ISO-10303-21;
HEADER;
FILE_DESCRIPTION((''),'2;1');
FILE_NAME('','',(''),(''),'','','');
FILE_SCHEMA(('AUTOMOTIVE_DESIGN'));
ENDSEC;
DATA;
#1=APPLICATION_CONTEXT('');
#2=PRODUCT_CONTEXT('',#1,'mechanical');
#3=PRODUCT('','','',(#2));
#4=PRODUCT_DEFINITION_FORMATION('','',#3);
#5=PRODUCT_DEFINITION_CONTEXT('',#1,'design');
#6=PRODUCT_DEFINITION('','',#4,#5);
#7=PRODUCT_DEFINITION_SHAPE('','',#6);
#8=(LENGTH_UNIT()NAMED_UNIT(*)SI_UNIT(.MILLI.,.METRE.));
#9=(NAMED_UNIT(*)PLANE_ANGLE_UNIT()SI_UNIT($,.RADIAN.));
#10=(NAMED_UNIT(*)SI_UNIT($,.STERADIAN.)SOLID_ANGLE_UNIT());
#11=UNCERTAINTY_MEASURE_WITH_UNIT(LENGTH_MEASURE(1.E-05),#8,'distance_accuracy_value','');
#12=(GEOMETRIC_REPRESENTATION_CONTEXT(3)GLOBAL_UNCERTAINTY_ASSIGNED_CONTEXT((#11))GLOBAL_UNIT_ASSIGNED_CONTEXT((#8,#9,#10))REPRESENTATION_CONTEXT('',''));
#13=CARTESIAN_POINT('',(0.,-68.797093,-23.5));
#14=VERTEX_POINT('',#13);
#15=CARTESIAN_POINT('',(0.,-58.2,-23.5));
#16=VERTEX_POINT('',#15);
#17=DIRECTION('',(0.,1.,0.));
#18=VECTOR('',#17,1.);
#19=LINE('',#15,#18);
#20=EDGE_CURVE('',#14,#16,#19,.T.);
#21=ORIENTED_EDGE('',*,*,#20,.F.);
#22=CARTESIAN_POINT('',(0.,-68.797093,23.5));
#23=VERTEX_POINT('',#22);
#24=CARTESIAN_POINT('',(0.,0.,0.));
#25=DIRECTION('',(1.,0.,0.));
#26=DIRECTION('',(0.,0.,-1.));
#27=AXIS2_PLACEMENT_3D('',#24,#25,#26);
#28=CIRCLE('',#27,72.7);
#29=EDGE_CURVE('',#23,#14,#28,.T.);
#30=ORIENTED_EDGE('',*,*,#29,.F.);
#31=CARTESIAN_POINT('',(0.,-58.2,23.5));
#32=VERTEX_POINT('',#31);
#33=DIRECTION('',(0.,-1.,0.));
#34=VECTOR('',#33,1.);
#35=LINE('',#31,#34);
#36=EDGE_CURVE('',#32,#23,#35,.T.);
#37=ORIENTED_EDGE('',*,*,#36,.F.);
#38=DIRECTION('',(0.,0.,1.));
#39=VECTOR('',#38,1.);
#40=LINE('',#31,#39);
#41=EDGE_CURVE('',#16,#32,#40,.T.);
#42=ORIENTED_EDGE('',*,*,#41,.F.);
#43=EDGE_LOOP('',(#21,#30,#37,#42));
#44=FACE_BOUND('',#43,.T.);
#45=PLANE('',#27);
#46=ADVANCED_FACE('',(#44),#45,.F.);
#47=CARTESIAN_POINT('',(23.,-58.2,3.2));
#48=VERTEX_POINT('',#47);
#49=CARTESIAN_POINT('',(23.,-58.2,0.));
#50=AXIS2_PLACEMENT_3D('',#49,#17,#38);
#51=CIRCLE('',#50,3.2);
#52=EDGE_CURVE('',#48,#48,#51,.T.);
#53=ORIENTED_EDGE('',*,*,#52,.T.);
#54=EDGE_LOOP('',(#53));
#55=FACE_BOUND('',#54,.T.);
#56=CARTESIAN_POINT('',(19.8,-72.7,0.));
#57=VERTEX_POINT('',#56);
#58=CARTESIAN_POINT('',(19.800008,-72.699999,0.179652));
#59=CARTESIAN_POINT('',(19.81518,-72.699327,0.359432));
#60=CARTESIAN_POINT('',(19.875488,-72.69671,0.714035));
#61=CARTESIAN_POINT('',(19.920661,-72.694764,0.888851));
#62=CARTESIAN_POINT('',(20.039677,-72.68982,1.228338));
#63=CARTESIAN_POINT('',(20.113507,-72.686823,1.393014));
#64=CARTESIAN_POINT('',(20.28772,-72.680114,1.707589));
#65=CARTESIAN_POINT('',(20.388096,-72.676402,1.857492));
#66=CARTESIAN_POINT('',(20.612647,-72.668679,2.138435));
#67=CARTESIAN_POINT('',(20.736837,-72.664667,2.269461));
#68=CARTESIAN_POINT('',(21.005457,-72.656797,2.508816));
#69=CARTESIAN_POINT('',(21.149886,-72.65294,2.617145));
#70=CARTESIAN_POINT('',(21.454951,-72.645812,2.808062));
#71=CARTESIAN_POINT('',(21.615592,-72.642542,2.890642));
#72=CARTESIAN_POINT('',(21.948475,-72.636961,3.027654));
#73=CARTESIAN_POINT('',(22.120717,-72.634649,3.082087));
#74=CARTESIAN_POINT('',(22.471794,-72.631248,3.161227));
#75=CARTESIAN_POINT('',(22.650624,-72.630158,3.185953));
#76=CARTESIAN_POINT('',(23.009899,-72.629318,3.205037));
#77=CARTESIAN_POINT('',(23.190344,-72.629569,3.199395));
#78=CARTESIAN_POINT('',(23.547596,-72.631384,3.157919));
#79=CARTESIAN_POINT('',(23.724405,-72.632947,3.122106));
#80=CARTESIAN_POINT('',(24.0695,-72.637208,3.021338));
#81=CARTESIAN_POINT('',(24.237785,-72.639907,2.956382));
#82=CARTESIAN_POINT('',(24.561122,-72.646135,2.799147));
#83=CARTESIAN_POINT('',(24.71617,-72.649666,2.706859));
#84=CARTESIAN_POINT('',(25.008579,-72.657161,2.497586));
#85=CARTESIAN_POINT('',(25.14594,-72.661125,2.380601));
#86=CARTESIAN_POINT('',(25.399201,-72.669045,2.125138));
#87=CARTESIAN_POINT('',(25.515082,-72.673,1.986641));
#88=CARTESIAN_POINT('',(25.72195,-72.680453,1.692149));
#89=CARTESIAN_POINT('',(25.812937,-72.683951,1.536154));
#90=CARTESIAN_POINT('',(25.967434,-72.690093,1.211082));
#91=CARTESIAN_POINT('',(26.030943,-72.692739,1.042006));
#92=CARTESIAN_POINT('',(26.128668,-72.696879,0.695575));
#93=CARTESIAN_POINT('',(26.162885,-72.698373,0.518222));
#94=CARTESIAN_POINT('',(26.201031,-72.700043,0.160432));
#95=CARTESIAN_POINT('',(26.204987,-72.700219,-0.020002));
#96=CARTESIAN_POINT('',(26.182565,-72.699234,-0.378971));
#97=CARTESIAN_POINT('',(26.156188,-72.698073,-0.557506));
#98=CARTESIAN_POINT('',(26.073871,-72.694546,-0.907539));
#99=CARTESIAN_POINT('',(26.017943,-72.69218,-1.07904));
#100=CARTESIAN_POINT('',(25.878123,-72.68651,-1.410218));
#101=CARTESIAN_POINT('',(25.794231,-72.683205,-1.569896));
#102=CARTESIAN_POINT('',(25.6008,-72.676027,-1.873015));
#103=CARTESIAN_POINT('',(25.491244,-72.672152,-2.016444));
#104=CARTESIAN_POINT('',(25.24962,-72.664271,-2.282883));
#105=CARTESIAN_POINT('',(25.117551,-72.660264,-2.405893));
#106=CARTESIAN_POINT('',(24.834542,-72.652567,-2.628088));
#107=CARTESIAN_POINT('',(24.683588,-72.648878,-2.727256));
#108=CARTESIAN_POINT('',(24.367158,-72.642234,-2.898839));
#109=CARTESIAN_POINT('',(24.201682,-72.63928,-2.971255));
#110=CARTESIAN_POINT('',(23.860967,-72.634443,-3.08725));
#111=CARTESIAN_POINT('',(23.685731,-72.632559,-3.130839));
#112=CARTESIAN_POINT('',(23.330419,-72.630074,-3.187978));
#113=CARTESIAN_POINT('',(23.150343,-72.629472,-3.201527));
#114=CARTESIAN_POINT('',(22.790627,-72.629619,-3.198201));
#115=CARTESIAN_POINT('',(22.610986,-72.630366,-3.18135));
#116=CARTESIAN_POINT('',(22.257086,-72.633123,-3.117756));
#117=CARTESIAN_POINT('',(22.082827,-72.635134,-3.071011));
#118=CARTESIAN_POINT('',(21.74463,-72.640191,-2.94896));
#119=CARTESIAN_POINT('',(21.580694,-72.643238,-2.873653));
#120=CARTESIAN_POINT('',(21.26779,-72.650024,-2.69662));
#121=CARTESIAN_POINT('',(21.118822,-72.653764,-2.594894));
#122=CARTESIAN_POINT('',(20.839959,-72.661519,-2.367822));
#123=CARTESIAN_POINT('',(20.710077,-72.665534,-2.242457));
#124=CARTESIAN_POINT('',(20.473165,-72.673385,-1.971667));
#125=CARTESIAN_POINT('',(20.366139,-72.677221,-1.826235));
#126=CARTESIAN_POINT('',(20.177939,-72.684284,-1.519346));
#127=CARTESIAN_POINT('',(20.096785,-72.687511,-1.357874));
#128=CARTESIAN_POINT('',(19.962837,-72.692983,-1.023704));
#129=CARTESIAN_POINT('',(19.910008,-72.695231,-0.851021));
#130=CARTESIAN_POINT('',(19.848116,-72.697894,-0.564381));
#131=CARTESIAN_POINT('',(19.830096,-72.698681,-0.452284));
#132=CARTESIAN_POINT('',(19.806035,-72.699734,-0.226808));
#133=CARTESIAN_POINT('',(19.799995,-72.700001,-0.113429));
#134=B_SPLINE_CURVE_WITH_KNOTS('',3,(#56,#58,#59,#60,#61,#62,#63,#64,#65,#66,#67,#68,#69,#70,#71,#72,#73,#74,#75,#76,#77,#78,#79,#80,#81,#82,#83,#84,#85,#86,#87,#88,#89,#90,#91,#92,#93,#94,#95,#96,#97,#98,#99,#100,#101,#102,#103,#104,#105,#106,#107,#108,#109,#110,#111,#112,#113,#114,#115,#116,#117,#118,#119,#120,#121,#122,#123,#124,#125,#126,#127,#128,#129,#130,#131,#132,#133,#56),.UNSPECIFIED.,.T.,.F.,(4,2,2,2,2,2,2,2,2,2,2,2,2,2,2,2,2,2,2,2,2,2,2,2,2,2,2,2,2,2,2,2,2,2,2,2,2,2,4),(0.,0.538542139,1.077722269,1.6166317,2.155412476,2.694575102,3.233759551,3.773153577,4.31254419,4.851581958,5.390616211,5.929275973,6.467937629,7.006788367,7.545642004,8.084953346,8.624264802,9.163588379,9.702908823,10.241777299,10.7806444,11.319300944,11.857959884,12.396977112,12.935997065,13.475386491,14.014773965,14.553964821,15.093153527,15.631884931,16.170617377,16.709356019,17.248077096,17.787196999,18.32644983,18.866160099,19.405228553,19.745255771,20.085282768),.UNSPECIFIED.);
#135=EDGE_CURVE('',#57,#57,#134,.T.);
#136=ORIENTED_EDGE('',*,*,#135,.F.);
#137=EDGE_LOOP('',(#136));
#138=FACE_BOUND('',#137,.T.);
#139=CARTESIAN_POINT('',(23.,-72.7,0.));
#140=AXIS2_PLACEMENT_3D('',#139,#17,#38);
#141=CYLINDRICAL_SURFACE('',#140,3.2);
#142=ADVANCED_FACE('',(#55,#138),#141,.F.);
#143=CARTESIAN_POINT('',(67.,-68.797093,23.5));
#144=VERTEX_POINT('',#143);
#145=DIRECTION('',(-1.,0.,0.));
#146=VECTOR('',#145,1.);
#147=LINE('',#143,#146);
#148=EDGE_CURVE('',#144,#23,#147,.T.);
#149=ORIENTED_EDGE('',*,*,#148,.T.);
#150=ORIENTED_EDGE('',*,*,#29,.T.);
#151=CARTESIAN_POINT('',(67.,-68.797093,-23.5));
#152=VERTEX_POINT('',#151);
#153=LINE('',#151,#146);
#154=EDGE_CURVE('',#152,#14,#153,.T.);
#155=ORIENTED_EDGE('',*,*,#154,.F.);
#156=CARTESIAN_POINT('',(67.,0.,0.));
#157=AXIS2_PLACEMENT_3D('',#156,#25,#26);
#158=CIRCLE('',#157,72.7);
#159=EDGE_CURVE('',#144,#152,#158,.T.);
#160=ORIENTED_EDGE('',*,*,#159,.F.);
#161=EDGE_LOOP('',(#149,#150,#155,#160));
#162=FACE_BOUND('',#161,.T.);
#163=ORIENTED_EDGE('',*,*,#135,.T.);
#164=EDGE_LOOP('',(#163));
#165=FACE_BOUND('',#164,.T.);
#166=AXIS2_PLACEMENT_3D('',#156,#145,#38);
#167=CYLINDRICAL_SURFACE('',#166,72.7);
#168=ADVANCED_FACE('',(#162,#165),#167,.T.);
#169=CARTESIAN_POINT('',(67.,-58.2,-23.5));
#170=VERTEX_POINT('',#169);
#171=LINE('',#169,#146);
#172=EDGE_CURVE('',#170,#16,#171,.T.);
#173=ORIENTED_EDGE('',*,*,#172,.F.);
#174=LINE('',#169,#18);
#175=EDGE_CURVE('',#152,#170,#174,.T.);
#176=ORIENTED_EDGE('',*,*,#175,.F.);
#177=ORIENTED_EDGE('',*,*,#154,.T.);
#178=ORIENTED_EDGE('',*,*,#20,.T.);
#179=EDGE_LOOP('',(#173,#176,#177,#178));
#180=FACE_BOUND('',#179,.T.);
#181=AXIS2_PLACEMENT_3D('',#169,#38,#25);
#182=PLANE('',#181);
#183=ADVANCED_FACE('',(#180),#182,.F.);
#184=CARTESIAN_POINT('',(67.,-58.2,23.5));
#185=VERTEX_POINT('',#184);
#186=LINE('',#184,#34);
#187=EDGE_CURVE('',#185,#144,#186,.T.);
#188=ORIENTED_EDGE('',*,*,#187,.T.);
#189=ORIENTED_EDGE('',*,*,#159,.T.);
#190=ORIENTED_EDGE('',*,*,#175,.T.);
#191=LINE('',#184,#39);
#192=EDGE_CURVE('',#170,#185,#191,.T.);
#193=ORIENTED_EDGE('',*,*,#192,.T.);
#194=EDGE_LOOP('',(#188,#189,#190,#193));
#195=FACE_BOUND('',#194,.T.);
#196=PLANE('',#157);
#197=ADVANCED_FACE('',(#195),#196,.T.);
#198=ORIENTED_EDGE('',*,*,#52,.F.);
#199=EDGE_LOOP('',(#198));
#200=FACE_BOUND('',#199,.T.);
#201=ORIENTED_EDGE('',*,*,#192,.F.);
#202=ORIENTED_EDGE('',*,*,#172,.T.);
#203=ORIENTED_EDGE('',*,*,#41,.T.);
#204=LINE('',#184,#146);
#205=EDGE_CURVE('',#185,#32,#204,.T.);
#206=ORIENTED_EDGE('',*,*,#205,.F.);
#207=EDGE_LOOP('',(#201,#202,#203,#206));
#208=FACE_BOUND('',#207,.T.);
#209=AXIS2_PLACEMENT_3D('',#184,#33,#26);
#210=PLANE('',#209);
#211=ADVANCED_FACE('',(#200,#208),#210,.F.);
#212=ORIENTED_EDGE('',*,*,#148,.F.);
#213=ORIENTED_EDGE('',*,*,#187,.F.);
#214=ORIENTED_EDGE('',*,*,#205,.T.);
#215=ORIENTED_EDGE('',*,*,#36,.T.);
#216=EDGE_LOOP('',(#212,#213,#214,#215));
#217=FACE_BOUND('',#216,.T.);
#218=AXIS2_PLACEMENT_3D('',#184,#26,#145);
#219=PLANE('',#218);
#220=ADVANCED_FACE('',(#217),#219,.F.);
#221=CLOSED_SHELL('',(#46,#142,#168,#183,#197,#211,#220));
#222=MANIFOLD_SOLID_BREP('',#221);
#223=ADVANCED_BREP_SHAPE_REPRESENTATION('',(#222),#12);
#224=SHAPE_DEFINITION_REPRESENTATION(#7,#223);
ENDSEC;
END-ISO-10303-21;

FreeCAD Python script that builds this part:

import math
import FreeCAD as App
import Part
import Sketcher
from FreeCAD import Vector

doc = App.newDocument("Part")
params = doc.addObject("Spreadsheet::Sheet", "Params")
for row, (alias, value) in enumerate([
    ("sketch1_radius", "72.7 mm"),
    ("sketch1_height", "47 mm"),
    ("pad1_length", "67 mm"),
    ("sketch2_diameter", "6.4 mm"),
], start=1):
    params.set(f"A{row}", alias)
    params.set(f"B{row}", "=" + value)
    params.setAlias(f"B{row}", alias)

body = doc.addObject("PartDesign::Body", "Body")

# Sketch on YZ plane
sketch1 = body.newObject("Sketcher::SketchObject", "Sketch")
sketch1.AttachmentSupport = (doc.getObject("YZ_Plane"), [""])
sketch1.MapMode = "FlatFace"
sketch1.addGeometry([
    Part.LineSegment(Vector(-58, -24, 0), Vector(-58, 24, 0)),
    Part.LineSegment(Vector(-58, 24, 0), Vector(-69, 24, 0)),
    Part.ArcOfCircle(Part.Circle(Vector(0, 0, 0), Vector(0, 0, 1), 73), math.radians(161), math.radians(199)),
    Part.LineSegment(Vector(-69, -24, 0), Vector(-58, -24, 0)),
], False)
sketch1.addConstraint([
    Sketcher.Constraint("Coincident", 0, 2, 1, 1),
    Sketcher.Constraint("Coincident", 1, 2, 2, 1),
    Sketcher.Constraint("Coincident", 2, 2, 3, 1),
    Sketcher.Constraint("Coincident", 3, 2, 0, 1),
    Sketcher.Constraint("Vertical", 0),
    Sketcher.Constraint("Horizontal", 1),
    Sketcher.Constraint("Horizontal", 3),
    Sketcher.Constraint("Coincident", 2, 3, -1, 1),
    Sketcher.Constraint("Vertical", 1, 2, 2, 2),
    Sketcher.Constraint("Radius", 2, 72.7),
    Sketcher.Constraint("DistanceY", 0, 1, 0, 2, 47.0),
    Sketcher.Constraint("DistanceX", 0, 2, -1, 1, 58.2),
])
sketch1.setExpression("Constraints[9]", "Params.sketch1_radius")
sketch1.setExpression("Constraints[10]", "Params.sketch1_height")
pad1 = body.newObject("PartDesign::Pad", "Pad")
pad1.Profile = sketch1
pad1.setExpression("Length", "Params.pad1_length")

# Sketch on XZ plane
sketch2 = body.newObject("Sketcher::SketchObject", "Sketch001")
sketch2.AttachmentSupport = (doc.getObject("XZ_Plane"), [""])
sketch2.MapMode = "FlatFace"
sketch2.AttachmentOffset = App.Placement(Vector(0, 0, 58.2), App.Rotation())
sketch2.addGeometry(Part.Circle(Vector(23, 0, 0), Vector(0, 0, 1), 3.2), False)
sketch2.addConstraint([
    Sketcher.Constraint("PointOnObject", 0, 3, -1),
    Sketcher.Constraint("Diameter", 0, 6.4),
    Sketcher.Constraint("DistanceX", -1, 1, 0, 3, 23.0),
])
sketch2.setExpression("Constraints[1]", "Params.sketch2_diameter")
pocket1 = body.newObject("PartDesign::Pocket", "Pocket")
pocket1.Profile = sketch2
pocket1.Type = "ThroughAll"
pocket1.Reversed = True

doc.recompute()
